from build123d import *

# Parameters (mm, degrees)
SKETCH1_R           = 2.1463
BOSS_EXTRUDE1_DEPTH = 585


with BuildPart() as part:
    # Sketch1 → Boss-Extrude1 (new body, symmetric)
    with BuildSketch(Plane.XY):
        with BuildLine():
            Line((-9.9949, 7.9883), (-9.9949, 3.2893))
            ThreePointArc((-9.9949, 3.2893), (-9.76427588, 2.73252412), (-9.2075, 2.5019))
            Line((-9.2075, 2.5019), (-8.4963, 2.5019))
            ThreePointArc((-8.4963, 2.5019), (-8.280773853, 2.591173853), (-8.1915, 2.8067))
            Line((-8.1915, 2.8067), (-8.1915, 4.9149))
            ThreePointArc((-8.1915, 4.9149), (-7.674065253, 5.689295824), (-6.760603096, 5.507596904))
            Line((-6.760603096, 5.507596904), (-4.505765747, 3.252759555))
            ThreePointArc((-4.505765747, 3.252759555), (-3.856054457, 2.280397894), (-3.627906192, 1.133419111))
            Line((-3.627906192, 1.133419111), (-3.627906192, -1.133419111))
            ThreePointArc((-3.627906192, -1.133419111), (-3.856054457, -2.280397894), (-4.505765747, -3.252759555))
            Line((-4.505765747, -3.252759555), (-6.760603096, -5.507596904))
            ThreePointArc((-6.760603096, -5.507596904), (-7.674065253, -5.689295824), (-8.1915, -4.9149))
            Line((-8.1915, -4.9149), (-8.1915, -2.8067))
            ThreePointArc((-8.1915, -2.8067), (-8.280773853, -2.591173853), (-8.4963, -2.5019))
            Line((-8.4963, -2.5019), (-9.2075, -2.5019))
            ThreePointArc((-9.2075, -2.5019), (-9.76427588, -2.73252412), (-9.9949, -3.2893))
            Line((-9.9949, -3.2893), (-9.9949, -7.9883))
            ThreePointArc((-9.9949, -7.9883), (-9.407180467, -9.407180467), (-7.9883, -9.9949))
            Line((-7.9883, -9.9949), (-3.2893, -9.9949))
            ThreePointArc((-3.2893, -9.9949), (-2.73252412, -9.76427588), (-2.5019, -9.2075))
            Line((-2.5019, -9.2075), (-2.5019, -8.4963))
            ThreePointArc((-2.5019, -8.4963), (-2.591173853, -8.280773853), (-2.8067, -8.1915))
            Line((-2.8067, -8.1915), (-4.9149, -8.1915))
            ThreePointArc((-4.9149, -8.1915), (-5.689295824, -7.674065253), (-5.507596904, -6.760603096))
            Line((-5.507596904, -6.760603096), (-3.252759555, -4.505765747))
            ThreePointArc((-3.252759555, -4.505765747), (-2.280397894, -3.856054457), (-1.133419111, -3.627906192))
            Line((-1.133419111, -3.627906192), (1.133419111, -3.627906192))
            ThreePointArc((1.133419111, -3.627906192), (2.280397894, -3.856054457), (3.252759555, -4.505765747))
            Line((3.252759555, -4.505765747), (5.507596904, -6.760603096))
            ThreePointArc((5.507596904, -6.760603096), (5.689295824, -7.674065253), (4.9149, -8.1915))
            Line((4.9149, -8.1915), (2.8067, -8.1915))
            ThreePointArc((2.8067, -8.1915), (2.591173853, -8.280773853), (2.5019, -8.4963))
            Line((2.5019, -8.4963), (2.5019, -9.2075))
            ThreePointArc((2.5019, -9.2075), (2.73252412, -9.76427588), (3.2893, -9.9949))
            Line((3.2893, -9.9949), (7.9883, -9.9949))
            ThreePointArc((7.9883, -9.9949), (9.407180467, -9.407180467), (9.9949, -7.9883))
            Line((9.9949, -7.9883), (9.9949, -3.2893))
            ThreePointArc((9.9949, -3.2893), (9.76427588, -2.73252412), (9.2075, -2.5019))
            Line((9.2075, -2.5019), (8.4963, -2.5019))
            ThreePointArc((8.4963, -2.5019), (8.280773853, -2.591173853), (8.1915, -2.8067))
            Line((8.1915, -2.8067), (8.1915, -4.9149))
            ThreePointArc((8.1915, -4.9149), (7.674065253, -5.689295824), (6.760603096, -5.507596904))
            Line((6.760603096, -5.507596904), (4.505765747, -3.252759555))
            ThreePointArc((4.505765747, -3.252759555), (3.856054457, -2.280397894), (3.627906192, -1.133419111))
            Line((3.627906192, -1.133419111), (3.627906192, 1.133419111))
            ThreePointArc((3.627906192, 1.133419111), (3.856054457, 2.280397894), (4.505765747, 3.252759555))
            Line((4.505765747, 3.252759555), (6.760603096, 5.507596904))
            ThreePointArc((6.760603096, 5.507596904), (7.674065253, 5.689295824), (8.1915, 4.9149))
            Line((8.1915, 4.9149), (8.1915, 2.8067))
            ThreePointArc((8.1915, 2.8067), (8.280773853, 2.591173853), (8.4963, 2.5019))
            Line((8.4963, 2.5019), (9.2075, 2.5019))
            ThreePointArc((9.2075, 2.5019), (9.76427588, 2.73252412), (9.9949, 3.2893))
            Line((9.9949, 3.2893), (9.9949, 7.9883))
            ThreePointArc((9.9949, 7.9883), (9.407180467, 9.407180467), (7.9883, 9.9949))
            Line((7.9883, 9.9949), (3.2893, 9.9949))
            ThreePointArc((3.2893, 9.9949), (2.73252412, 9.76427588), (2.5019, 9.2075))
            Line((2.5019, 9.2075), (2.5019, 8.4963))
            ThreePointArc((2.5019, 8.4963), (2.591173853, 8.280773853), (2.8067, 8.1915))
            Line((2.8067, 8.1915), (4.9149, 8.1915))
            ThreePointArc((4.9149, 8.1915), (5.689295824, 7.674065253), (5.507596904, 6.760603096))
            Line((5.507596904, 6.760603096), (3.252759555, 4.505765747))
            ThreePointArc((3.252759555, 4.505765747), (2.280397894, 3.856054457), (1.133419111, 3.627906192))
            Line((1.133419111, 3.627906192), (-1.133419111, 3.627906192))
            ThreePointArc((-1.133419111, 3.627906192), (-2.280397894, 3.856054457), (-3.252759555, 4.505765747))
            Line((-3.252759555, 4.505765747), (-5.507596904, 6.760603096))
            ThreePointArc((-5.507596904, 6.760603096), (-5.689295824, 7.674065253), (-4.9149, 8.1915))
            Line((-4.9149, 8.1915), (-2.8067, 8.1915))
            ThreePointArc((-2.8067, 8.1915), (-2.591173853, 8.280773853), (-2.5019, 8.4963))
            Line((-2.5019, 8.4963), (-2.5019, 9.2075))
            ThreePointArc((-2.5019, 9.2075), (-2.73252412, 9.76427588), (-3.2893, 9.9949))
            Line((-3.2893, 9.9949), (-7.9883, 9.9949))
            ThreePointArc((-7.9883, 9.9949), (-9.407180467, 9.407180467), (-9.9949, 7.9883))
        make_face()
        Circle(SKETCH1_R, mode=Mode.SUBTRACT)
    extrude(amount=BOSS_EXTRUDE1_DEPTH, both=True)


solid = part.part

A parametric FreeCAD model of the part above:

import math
import FreeCAD as App
import Part
import Sketcher

V = App.Vector
Q = App.Units.Quantity

doc = App.newDocument("Part")
body = doc.addObject("PartDesign::Body", "Body")

# Sketch on XY plane
sketch1 = body.newObject("Sketcher::SketchObject", "Sketch")
sketch1.AttachmentSupport = (doc.getObject("XY_Plane"), [""])
sketch1.MapMode = "FlatFace"
sketch1.addGeometry([
    Part.LineSegment(V(-9.9949, 7.9883, 0), V(-9.9949, 3.2893, 0)),  # 0
    Part.ArcOfCircle(Part.Circle(V(-9.2075, 3.2893, 0), V(0, 0, 1), 0.7874), math.radians(180), math.radians(270)),  # 1
    Part.LineSegment(V(-9.2075, 2.5019, 0), V(-8.4963, 2.5019, 0)),  # 2
    Part.ArcOfCircle(Part.Circle(V(-8.4963, 2.8067, 0), V(0, 0, 1), 0.3048), math.radians(-90), math.radians(0)),  # 3
    Part.LineSegment(V(-8.1915, 2.8067, 0), V(-8.1915, 4.9149, 0)),  # 4
    Part.ArcOfCircle(Part.Circle(V(-7.3533, 4.9149, 0), V(0, 0, 1), 0.8382), math.radians(45), math.radians(180)),  # 5
    Part.LineSegment(V(-6.760603, 5.507597, 0), V(-4.505766, 3.25276, 0)),  # 6
    Part.ArcOfCircle(Part.Circle(V(-6.625106, 1.133419, 0), V(0, 0, 1), 2.9972), math.radians(0), math.radians(45)),  # 7
    Part.LineSegment(V(-3.627906, 1.133419, 0), V(-3.627906, -1.133419, 0)),  # 8
    Part.ArcOfCircle(Part.Circle(V(-6.625106, -1.133419, 0), V(0, 0, 1), 2.9972), math.radians(-45), math.radians(0)),  # 9
    Part.LineSegment(V(-4.505766, -3.25276, 0), V(-6.760603, -5.507597, 0)),  # 10
    Part.ArcOfCircle(Part.Circle(V(-7.3533, -4.9149, 0), V(0, 0, 1), 0.8382), math.radians(180), math.radians(315)),  # 11
    Part.LineSegment(V(-8.1915, -4.9149, 0), V(-8.1915, -2.8067, 0)),  # 12
    Part.ArcOfCircle(Part.Circle(V(-8.4963, -2.8067, 0), V(0, 0, 1), 0.3048), math.radians(0), math.radians(90)),  # 13
    Part.LineSegment(V(-8.4963, -2.5019, 0), V(-9.2075, -2.5019, 0)),  # 14
    Part.ArcOfCircle(Part.Circle(V(-9.2075, -3.2893, 0), V(0, 0, 1), 0.7874), math.radians(90), math.radians(180)),  # 15
    Part.LineSegment(V(-9.9949, -3.2893, 0), V(-9.9949, -7.9883, 0)),  # 16
    Part.ArcOfCircle(Part.Circle(V(-7.9883, -7.9883, 0), V(0, 0, 1), 2.0066), math.radians(180), math.radians(270)),  # 17
    Part.LineSegment(V(-7.9883, -9.9949, 0), V(-3.2893, -9.9949, 0)),  # 18
    Part.ArcOfCircle(Part.Circle(V(-3.2893, -9.2075, 0), V(0, 0, 1), 0.7874), math.radians(-90), math.radians(0)),  # 19
    Part.LineSegment(V(-2.5019, -9.2075, 0), V(-2.5019, -8.4963, 0)),  # 20
    Part.ArcOfCircle(Part.Circle(V(-2.8067, -8.4963, 0), V(0, 0, 1), 0.3048), math.radians(0), math.radians(90)),  # 21
    Part.LineSegment(V(-2.8067, -8.1915, 0), V(-4.9149, -8.1915, 0)),  # 22
    Part.ArcOfCircle(Part.Circle(V(-4.9149, -7.3533, 0), V(0, 0, 1), 0.8382), math.radians(135), math.radians(270)),  # 23
    Part.LineSegment(V(-5.507597, -6.760603, 0), V(-3.25276, -4.505766, 0)),  # 24
    Part.ArcOfCircle(Part.Circle(V(-1.133419, -6.625106, 0), V(0, 0, 1), 2.9972), math.radians(90), math.radians(135)),  # 25
    Part.LineSegment(V(-1.133419, -3.627906, 0), V(1.133419, -3.627906, 0)),  # 26
    Part.ArcOfCircle(Part.Circle(V(1.133419, -6.625106, 0), V(0, 0, 1), 2.9972), math.radians(45), math.radians(90)),  # 27
    Part.LineSegment(V(3.25276, -4.505766, 0), V(5.507597, -6.760603, 0)),  # 28
    Part.ArcOfCircle(Part.Circle(V(4.9149, -7.3533, 0), V(0, 0, 1), 0.8382), math.radians(-90), math.radians(45)),  # 29
    Part.LineSegment(V(4.9149, -8.1915, 0), V(2.8067, -8.1915, 0)),  # 30
    Part.ArcOfCircle(Part.Circle(V(2.8067, -8.4963, 0), V(0, 0, 1), 0.3048), math.radians(90), math.radians(180)),  # 31
    Part.LineSegment(V(2.5019, -8.4963, 0), V(2.5019, -9.2075, 0)),  # 32
    Part.ArcOfCircle(Part.Circle(V(3.2893, -9.2075, 0), V(0, 0, 1), 0.7874), math.radians(180), math.radians(270)),  # 33
    Part.LineSegment(V(3.2893, -9.9949, 0), V(7.9883, -9.9949, 0)),  # 34
    Part.ArcOfCircle(Part.Circle(V(7.9883, -7.9883, 0), V(0, 0, 1), 2.0066), math.radians(-90), math.radians(0)),  # 35
    Part.LineSegment(V(9.9949, -7.9883, 0), V(9.9949, -3.2893, 0)),  # 36
    Part.ArcOfCircle(Part.Circle(V(9.2075, -3.2893, 0), V(0, 0, 1), 0.7874), math.radians(0), math.radians(90)),  # 37
    Part.LineSegment(V(9.2075, -2.5019, 0), V(8.4963, -2.5019, 0)),  # 38
    Part.ArcOfCircle(Part.Circle(V(8.4963, -2.8067, 0), V(0, 0, 1), 0.3048), math.radians(90), math.radians(180)),  # 39
    Part.LineSegment(V(8.1915, -2.8067, 0), V(8.1915, -4.9149, 0)),  # 40
    Part.ArcOfCircle(Part.Circle(V(7.3533, -4.9149, 0), V(0, 0, 1), 0.8382), math.radians(-135), math.radians(0)),  # 41
    Part.LineSegment(V(6.760603, -5.507597, 0), V(4.505766, -3.25276, 0)),  # 42
    Part.ArcOfCircle(Part.Circle(V(6.625106, -1.133419, 0), V(0, 0, 1), 2.9972), math.radians(180), math.radians(225)),  # 43
    Part.LineSegment(V(3.627906, -1.133419, 0), V(3.627906, 1.133419, 0)),  # 44
    Part.ArcOfCircle(Part.Circle(V(6.625106, 1.133419, 0), V(0, 0, 1), 2.9972), math.radians(135), math.radians(180)),  # 45
    Part.LineSegment(V(4.505766, 3.25276, 0), V(6.760603, 5.507597, 0)),  # 46
    Part.ArcOfCircle(Part.Circle(V(7.3533, 4.9149, 0), V(0, 0, 1), 0.8382), math.radians(0), math.radians(135)),  # 47
    Part.LineSegment(V(8.1915, 4.9149, 0), V(8.1915, 2.8067, 0)),  # 48
    Part.ArcOfCircle(Part.Circle(V(8.4963, 2.8067, 0), V(0, 0, 1), 0.3048), math.radians(180), math.radians(270)),  # 49
    Part.LineSegment(V(8.4963, 2.5019, 0), V(9.2075, 2.5019, 0)),  # 50
    Part.ArcOfCircle(Part.Circle(V(9.2075, 3.2893, 0), V(0, 0, 1), 0.7874), math.radians(-90), math.radians(0)),  # 51
    Part.LineSegment(V(9.9949, 3.2893, 0), V(9.9949, 7.9883, 0)),  # 52
    Part.ArcOfCircle(Part.Circle(V(7.9883, 7.9883, 0), V(0, 0, 1), 2.0066), math.radians(0), math.radians(90)),  # 53
    Part.LineSegment(V(7.9883, 9.9949, 0), V(3.2893, 9.9949, 0)),  # 54
    Part.ArcOfCircle(Part.Circle(V(3.2893, 9.2075, 0), V(0, 0, 1), 0.7874), math.radians(90), math.radians(180)),  # 55
    Part.LineSegment(V(2.5019, 9.2075, 0), V(2.5019, 8.4963, 0)),  # 56
    Part.ArcOfCircle(Part.Circle(V(2.8067, 8.4963, 0), V(0, 0, 1), 0.3048), math.radians(180), math.radians(270)),  # 57
    Part.LineSegment(V(2.8067, 8.1915, 0), V(4.9149, 8.1915, 0)),  # 58
    Part.ArcOfCircle(Part.Circle(V(4.9149, 7.3533, 0), V(0, 0, 1), 0.8382), math.radians(-45), math.radians(90)),  # 59
    Part.LineSegment(V(5.507597, 6.760603, 0), V(3.25276, 4.505766, 0)),  # 60
    Part.ArcOfCircle(Part.Circle(V(1.133419, 6.625106, 0), V(0, 0, 1), 2.9972), math.radians(-90), math.radians(-45)),  # 61
    Part.LineSegment(V(1.133419, 3.627906, 0), V(-1.133419, 3.627906, 0)),  # 62
    Part.ArcOfCircle(Part.Circle(V(-1.133419, 6.625106, 0), V(0, 0, 1), 2.9972), math.radians(-135), math.radians(-90)),  # 63
    Part.LineSegment(V(-3.25276, 4.505766, 0), V(-5.507597, 6.760603, 0)),  # 64
    Part.ArcOfCircle(Part.Circle(V(-4.9149, 7.3533, 0), V(0, 0, 1), 0.8382), math.radians(90), math.radians(225)),  # 65
    Part.LineSegment(V(-4.9149, 8.1915, 0), V(-2.8067, 8.1915, 0)),  # 66
    Part.ArcOfCircle(Part.Circle(V(-2.8067, 8.4963, 0), V(0, 0, 1), 0.3048), math.radians(-90), math.radians(0)),  # 67
    Part.LineSegment(V(-2.5019, 8.4963, 0), V(-2.5019, 9.2075, 0)),  # 68
    Part.ArcOfCircle(Part.Circle(V(-3.2893, 9.2075, 0), V(0, 0, 1), 0.7874), math.radians(0), math.radians(90)),  # 69
    Part.LineSegment(V(-3.2893, 9.9949, 0), V(-7.9883, 9.9949, 0)),  # 70
    Part.ArcOfCircle(Part.Circle(V(-7.9883, 7.9883, 0), V(0, 0, 1), 2.0066), math.radians(90), math.radians(180)),  # 71
    Part.Circle(V(0, 0, 0), V(0, 0, 1), 2.1463),  # 72
], False)
sketch1.addConstraint([
    Sketcher.Constraint("Tangent", 0, 2, 1, 1),
    Sketcher.Constraint("Tangent", 1, 2, 2, 1),
    Sketcher.Constraint("Tangent", 2, 2, 3, 1),
    Sketcher.Constraint("Tangent", 3, 2, 4, 1),
    Sketcher.Constraint("Tangent", 4, 2, 5, 2),
    Sketcher.Constraint("Tangent", 5, 1, 6, 1),
    Sketcher.Constraint("Tangent", 6, 2, 7, 2),
    Sketcher.Constraint("Tangent", 7, 1, 8, 1),
    Sketcher.Constraint("Tangent", 8, 2, 9, 2),
    Sketcher.Constraint("Tangent", 9, 1, 10, 1),
    Sketcher.Constraint("Tangent", 10, 2, 11, 2),
    Sketcher.Constraint("Tangent", 11, 1, 12, 1),
    Sketcher.Constraint("Tangent", 12, 2, 13, 1),
    Sketcher.Constraint("Tangent", 13, 2, 14, 1),
    Sketcher.Constraint("Tangent", 14, 2, 15, 1),
    Sketcher.Constraint("Tangent", 15, 2, 16, 1),
    Sketcher.Constraint("Tangent", 16, 2, 17, 1),
    Sketcher.Constraint("Tangent", 17, 2, 18, 1),
    Sketcher.Constraint("Tangent", 18, 2, 19, 1),
    Sketcher.Constraint("Tangent", 19, 2, 20, 1),
    Sketcher.Constraint("Tangent", 20, 2, 21, 1),
    Sketcher.Constraint("Tangent", 21, 2, 22, 1),
    Sketcher.Constraint("Tangent", 22, 2, 23, 2),
    Sketcher.Constraint("Tangent", 23, 1, 24, 1),
    Sketcher.Constraint("Tangent", 24, 2, 25, 2),
    Sketcher.Constraint("Tangent", 25, 1, 26, 1),
    Sketcher.Constraint("Tangent", 26, 2, 27, 2),
    Sketcher.Constraint("Tangent", 27, 1, 28, 1),
    Sketcher.Constraint("Tangent", 28, 2, 29, 2),
    Sketcher.Constraint("Tangent", 29, 1, 30, 1),
    Sketcher.Constraint("Tangent", 30, 2, 31, 1),
    Sketcher.Constraint("Tangent", 31, 2, 32, 1),
    Sketcher.Constraint("Tangent", 32, 2, 33, 1),
    Sketcher.Constraint("Tangent", 33, 2, 34, 1),
    Sketcher.Constraint("Tangent", 34, 2, 35, 1),
    Sketcher.Constraint("Tangent", 35, 2, 36, 1),
    Sketcher.Constraint("Tangent", 36, 2, 37, 1),
    Sketcher.Constraint("Tangent", 37, 2, 38, 1),
    Sketcher.Constraint("Tangent", 38, 2, 39, 1),
    Sketcher.Constraint("Tangent", 39, 2, 40, 1),
    Sketcher.Constraint("Tangent", 40, 2, 41, 2),
    Sketcher.Constraint("Tangent", 41, 1, 42, 1),
    Sketcher.Constraint("Tangent", 42, 2, 43, 2),
    Sketcher.Constraint("Tangent", 43, 1, 44, 1),
    Sketcher.Constraint("Tangent", 44, 2, 45, 2),
    Sketcher.Constraint("Tangent", 45, 1, 46, 1),
    Sketcher.Constraint("Tangent", 46, 2, 47, 2),
    Sketcher.Constraint("Tangent", 47, 1, 48, 1),
    Sketcher.Constraint("Tangent", 48, 2, 49, 1),
    Sketcher.Constraint("Tangent", 49, 2, 50, 1),
    Sketcher.Constraint("Tangent", 50, 2, 51, 1),
    Sketcher.Constraint("Tangent", 51, 2, 52, 1),
    Sketcher.Constraint("Tangent", 52, 2, 53, 1),
    Sketcher.Constraint("Tangent", 53, 2, 54, 1),
    Sketcher.Constraint("Tangent", 54, 2, 55, 1),
    Sketcher.Constraint("Tangent", 55, 2, 56, 1),
    Sketcher.Constraint("Tangent", 56, 2, 57, 1),
    Sketcher.Constraint("Tangent", 57, 2, 58, 1),
    Sketcher.Constraint("Tangent", 58, 2, 59, 2),
    Sketcher.Constraint("Tangent", 59, 1, 60, 1),
    Sketcher.Constraint("Tangent", 60, 2, 61, 2),
    Sketcher.Constraint("Tangent", 61, 1, 62, 1),
    Sketcher.Constraint("Tangent", 62, 2, 63, 2),
    Sketcher.Constraint("Tangent", 63, 1, 64, 1),
    Sketcher.Constraint("Tangent", 64, 2, 65, 2),
    Sketcher.Constraint("Tangent", 65, 1, 66, 1),
    Sketcher.Constraint("Tangent", 66, 2, 67, 1),
    Sketcher.Constraint("Tangent", 67, 2, 68, 1),
    Sketcher.Constraint("Tangent", 68, 2, 69, 1),
    Sketcher.Constraint("Tangent", 69, 2, 70, 1),
    Sketcher.Constraint("Tangent", 70, 2, 71, 1),
    Sketcher.Constraint("Tangent", 71, 2, 0, 1),
    Sketcher.Constraint("Vertical", 0),
    Sketcher.Constraint("Horizontal", 2),
    Sketcher.Constraint("Vertical", 4),
    Sketcher.Constraint("Vertical", 8),
    Sketcher.Constraint("Vertical", 12),
    Sketcher.Constraint("Horizontal", 14),
    Sketcher.Constraint("Vertical", 16),
    Sketcher.Constraint("Horizontal", 18),
    Sketcher.Constraint("Vertical", 20),
    Sketcher.Constraint("Horizontal", 22),
    Sketcher.Constraint("Horizontal", 26),
    Sketcher.Constraint("Horizontal", 30),
    Sketcher.Constraint("Vertical", 32),
    Sketcher.Constraint("Horizontal", 34),
    Sketcher.Constraint("Vertical", 36),
    Sketcher.Constraint("Horizontal", 38),
    Sketcher.Constraint("Vertical", 40),
    Sketcher.Constraint("Vertical", 44),
    Sketcher.Constraint("Vertical", 48),
    Sketcher.Constraint("Horizontal", 50),
    Sketcher.Constraint("Vertical", 52),
    Sketcher.Constraint("Horizontal", 54),
    Sketcher.Constraint("Vertical", 56),
    Sketcher.Constraint("Horizontal", 58),
    Sketcher.Constraint("Horizontal", 62),
    Sketcher.Constraint("Horizontal", 66),
    Sketcher.Constraint("Vertical", 68),
    Sketcher.Constraint("Horizontal", 70),
    Sketcher.Constraint("Coincident", 72, 3, -1, 1),
    Sketcher.Constraint("Equal", 7, 9),
    Sketcher.Constraint("Equal", 5, 11),
    Sketcher.Constraint("Equal", 3, 13),
    Sketcher.Constraint("Equal", 1, 15),
    Sketcher.Constraint("Equal", 15, 19),
    Sketcher.Constraint("Equal", 13, 21),
    Sketcher.Constraint("Equal", 11, 23),
    Sketcher.Constraint("Equal", 9, 25),
    Sketcher.Constraint("Equal", 25, 27),
    Sketcher.Constraint("Equal", 23, 29),
    Sketcher.Constraint("Equal", 21, 31),
    Sketcher.Constraint("Equal", 19, 33),
    Sketcher.Constraint("Equal", 17, 35),
    Sketcher.Constraint("Equal", 33, 37),
    Sketcher.Constraint("Equal", 31, 39),
    Sketcher.Constraint("Equal", 29, 41),
    Sketcher.Constraint("Equal", 27, 43),
    Sketcher.Constraint("Equal", 43, 45),
    Sketcher.Constraint("Equal", 41, 47),
    Sketcher.Constraint("Equal", 39, 49),
    Sketcher.Constraint("Equal", 37, 51),
    Sketcher.Constraint("Equal", 35, 53),
    Sketcher.Constraint("Equal", 51, 55),
    Sketcher.Constraint("Equal", 49, 57),
    Sketcher.Constraint("Equal", 47, 59),
    Sketcher.Constraint("Equal", 45, 61),
    Sketcher.Constraint("Equal", 61, 63),
    Sketcher.Constraint("Equal", 59, 65),
    Sketcher.Constraint("Equal", 57, 67),
    Sketcher.Constraint("Equal", 55, 69),
    Sketcher.Constraint("Equal", 53, 71),
    Sketcher.Constraint("Symmetric", 1, 3, 37, 3, -1, 1),
    Sketcher.Constraint("Symmetric", 5, 3, 41, 3, -1, 1),
    Sketcher.Constraint("Symmetric", 7, 3, 43, 3, -1, 1),
    Sketcher.Constraint("Symmetric", 11, 3, 47, 3, -1, 1),
    Sketcher.Constraint("Symmetric", 15, 3, 51, 3, -1, 1),
    Sketcher.Constraint("Symmetric", 19, 3, 55, 3, -1, 1),
    Sketcher.Constraint("Symmetric", 23, 3, 59, 3, -1, 1),
    Sketcher.Constraint("Symmetric", 25, 3, 61, 3, -1, 1),
    Sketcher.Constraint("Symmetric", 29, 3, 65, 3, -1, 1),
    Sketcher.Constraint("Symmetric", 33, 3, 69, 3, -1, 1),
    Sketcher.Constraint("Symmetric", 23, 3, 29, 3, -2),
    Sketcher.Constraint("Symmetric", 19, 3, 33, 3, -2),
    Sketcher.Constraint("Symmetric", 15, 3, 37, 3, -2),
    Sketcher.Constraint("Symmetric", 11, 3, 41, 3, -2),
    Sketcher.Constraint("Perpendicular", 6, 10),
    Sketcher.Constraint("Parallel", 10, 24),
    Sketcher.Constraint("Perpendicular", 24, 28),
    Sketcher.Constraint("Perpendicular", 42, 46),
    Sketcher.Constraint("Perpendicular", 60, 64),
    Sketcher.Constraint("Horizontal", 9, 3, 43, 3),
    Sketcher.Constraint("Equal", 70, 0),
    Sketcher.Constraint("Equal", 66, 4),
    Sketcher.Constraint("Equal", 62, 8),
    Sketcher.Constraint("Equal", 50, 20),
    Sketcher.Constraint("Equal", 10, 24),
    Sketcher.Constraint("Diameter", 72, Q("0.169 in")),
    Sketcher.Constraint("Radius", 1, Q("0.031 in")),
    Sketcher.Constraint("Radius", 3, Q("0.012 in")),
    Sketcher.Constraint("Radius", 5, Q("0.033 in")),
    Sketcher.Constraint("Radius", 7, Q("0.118 in")),
    Sketcher.Constraint("Radius", 17, Q("0.079 in")),
    Sketcher.Constraint("DistanceX", 2, 1, 2, 2, Q("0.028 in")),
    Sketcher.Constraint("DistanceX", 18, 1, 18, 2, Q("0.185 in")),
    Sketcher.Constraint("DistanceX", 22, 2, 22, 1, Q("0.083 in")),
    Sketcher.Constraint("DistanceX", 1, 3, -1, 1, Q("0.3625 in")),
    Sketcher.Constraint("DistanceX", 26, 1, 26, 2, Q("2.266838 mm")),
])
pad1 = body.newObject("PartDesign::Pad", "Pad")
pad1.Profile = sketch1
pad1.Length = 1170
pad1.Midplane = True

doc.recompute()
